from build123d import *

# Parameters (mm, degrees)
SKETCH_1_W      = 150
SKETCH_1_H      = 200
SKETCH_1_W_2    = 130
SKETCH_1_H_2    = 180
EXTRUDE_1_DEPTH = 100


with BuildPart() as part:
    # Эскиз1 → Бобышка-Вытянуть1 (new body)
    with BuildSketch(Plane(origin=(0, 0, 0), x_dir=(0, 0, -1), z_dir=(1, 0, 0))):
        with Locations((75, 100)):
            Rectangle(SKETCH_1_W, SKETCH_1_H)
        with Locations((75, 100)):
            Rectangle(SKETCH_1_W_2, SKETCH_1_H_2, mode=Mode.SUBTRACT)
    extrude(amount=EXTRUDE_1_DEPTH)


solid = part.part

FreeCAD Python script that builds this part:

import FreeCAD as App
import Part
import Sketcher
from FreeCAD import Vector
Q = App.Units.Quantity


def add_polygon(sketch, points):
    """Adds a closed chain of lines whose ends are joined by coincident constraints."""
    first, n = sketch.GeometryCount, len(points)
    for a, b in zip(points, points[1:] + points[:1]):
        sketch.addGeometry(Part.LineSegment(App.Vector(*a, 0), App.Vector(*b, 0)), False)
    for i in range(n):
        sketch.addConstraint(Sketcher.Constraint("Coincident", first + i, 2, first + (i + 1) % n, 1))

doc = App.newDocument("Part")
body = doc.addObject("PartDesign::Body", "Body")

sketch1 = body.newObject("Sketcher::SketchObject", "Sketch")
sketch1.AttachmentSupport = (doc.getObject("YZ_Plane"), [""])
sketch1.MapMode = "FlatFace"
add_polygon(sketch1, [(200, 0), (0, 0), (0, -150), (200, -150)])
add_polygon(sketch1, [(10, -140), (10, -10), (190, -10), (190, -140)])
sketch1.addConstraint([
    Sketcher.Constraint("Horizontal", 0),
    Sketcher.Constraint("Vertical", 1),
    Sketcher.Constraint("Horizontal", 2),
    Sketcher.Constraint("Vertical", 3),
    Sketcher.Constraint("Vertical", 4),
    Sketcher.Constraint("Horizontal", 5),
    Sketcher.Constraint("Vertical", 6),
    Sketcher.Constraint("Horizontal", 7),
    Sketcher.Constraint("Coincident", 0, 2, -1, 1),
    Sketcher.Constraint("DistanceX", 0, 2, 0, 1, Q("200 mm")),
    Sketcher.Constraint("DistanceX", 5, 1, 5, 2, Q("180 mm")),
    Sketcher.Constraint("DistanceY", 1, 2, 1, 1, Q("150 mm")),
    Sketcher.Constraint("DistanceY", 4, 1, 4, 2, Q("130 mm")),
    Sketcher.Constraint("DistanceX", -1, 1, 4, 2, Q("10 mm")),
    Sketcher.Constraint("DistanceY", 4, 2, -1, 1, Q("10 mm")),
])
pad1 = body.newObject("PartDesign::Pad", "Pad")
pad1.Profile = sketch1
pad1.Length = 100

doc.recompute()
